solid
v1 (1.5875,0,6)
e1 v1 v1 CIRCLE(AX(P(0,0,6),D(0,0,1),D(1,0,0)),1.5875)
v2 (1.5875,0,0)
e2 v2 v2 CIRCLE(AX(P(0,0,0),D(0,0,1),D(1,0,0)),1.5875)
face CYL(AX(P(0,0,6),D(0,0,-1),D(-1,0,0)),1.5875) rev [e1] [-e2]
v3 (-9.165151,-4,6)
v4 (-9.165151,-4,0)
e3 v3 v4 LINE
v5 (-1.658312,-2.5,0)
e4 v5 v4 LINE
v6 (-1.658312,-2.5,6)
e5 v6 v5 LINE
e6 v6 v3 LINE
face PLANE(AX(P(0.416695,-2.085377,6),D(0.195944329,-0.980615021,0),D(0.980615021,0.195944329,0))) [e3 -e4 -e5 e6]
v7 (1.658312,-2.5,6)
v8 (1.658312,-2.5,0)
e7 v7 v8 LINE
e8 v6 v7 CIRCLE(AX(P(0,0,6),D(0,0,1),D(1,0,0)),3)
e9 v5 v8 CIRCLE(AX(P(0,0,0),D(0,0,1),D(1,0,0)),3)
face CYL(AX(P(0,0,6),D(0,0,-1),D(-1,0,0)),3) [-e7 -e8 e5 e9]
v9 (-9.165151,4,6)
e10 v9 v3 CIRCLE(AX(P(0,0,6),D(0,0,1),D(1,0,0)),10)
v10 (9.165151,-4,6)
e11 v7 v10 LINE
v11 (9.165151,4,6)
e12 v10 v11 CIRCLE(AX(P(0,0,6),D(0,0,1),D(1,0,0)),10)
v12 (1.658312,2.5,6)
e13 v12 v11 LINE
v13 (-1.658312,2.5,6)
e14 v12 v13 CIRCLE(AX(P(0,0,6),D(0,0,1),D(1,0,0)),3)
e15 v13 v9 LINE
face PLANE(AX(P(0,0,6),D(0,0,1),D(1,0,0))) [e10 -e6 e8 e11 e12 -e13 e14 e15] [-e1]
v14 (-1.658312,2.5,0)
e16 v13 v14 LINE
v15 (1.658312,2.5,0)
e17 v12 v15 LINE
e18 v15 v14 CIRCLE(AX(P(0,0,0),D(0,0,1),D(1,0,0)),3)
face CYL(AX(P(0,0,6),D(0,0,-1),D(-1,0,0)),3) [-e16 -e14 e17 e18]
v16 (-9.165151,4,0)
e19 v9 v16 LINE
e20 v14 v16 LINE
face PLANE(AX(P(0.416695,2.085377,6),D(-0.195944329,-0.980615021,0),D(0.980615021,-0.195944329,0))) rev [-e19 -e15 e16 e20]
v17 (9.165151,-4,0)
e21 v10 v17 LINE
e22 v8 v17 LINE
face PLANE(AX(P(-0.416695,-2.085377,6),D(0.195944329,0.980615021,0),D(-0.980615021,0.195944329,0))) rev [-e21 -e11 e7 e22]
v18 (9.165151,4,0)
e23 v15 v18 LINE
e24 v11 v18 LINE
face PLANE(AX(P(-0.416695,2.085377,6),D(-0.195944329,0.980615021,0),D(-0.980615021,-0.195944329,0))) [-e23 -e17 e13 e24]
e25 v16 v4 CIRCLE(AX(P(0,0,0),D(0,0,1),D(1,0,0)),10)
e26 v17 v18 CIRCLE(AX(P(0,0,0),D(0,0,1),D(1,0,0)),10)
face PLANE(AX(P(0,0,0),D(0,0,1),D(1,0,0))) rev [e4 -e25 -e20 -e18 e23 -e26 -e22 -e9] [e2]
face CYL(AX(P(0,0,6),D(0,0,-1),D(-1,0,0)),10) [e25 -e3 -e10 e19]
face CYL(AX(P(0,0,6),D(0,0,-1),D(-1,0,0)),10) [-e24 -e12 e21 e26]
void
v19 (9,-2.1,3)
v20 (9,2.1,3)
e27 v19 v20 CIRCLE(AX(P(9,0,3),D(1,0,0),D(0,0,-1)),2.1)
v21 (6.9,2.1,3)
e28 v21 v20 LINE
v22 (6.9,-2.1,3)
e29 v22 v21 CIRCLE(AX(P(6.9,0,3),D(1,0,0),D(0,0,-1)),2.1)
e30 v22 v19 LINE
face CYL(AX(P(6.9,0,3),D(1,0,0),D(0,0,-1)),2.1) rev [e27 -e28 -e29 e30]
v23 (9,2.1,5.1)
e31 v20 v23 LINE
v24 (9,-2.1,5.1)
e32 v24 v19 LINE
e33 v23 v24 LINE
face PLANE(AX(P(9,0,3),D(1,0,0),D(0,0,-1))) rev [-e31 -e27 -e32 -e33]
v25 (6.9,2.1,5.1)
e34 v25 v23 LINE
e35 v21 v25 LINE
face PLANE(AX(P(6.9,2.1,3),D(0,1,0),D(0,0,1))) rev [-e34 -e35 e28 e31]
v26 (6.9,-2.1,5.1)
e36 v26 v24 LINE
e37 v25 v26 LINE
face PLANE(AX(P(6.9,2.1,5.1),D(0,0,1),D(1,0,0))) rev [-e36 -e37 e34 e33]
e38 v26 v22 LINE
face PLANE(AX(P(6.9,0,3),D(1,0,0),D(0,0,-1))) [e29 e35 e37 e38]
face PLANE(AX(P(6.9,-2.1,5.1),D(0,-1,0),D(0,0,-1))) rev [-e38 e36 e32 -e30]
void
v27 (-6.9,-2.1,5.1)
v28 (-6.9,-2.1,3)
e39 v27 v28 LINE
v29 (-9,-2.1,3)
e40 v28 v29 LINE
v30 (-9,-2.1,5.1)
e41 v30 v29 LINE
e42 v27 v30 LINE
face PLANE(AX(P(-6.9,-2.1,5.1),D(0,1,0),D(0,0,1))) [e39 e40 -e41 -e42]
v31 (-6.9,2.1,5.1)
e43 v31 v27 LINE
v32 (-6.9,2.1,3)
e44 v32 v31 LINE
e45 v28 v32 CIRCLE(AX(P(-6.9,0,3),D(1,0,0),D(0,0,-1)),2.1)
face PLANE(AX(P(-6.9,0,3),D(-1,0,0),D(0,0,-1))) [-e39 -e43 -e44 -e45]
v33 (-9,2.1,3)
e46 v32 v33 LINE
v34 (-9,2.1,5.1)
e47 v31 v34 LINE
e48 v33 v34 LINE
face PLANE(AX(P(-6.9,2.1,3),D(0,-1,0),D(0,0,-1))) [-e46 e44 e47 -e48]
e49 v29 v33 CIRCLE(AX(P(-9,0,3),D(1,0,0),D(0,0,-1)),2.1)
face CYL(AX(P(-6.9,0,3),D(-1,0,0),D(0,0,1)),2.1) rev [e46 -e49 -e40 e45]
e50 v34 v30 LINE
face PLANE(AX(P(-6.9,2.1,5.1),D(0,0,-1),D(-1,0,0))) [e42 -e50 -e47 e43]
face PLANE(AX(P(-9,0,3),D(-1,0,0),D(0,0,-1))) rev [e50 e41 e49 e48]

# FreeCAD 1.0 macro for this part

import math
import FreeCAD as App
import Part
import Sketcher

V = App.Vector

doc = App.newDocument("Part")
body = doc.addObject("PartDesign::Body", "Body")

sketch1 = doc.addObject("Sketcher::SketchObject", "Sketch")
body.addObject(sketch1)
sketch1.AttachmentSupport = (doc.XY_Plane, [""])
sketch1.MapMode = "FlatFace"
sketch1.addGeometry([
    Part.LineSegment(V(-9.2, -4, 0), V(-1.7, -2.5, 0)),
    Part.ArcOfCircle(Part.Circle(V(0, 0, 0), V(0, 0, 1), 3), math.radians(-124), math.radians(-56)),
    Part.LineSegment(V(1.7, -2.5, 0), V(9.2, -4, 0)),
    Part.ArcOfCircle(Part.Circle(V(0, 0, 0), V(0, 0, 1), 10), math.radians(-24), math.radians(24)),
    Part.LineSegment(V(9.2, 4, 0), V(1.7, 2.5, 0)),
    Part.ArcOfCircle(Part.Circle(V(0, 0, 0), V(0, 0, 1), 3), math.radians(56), math.radians(124)),
    Part.LineSegment(V(-1.7, 2.5, 0), V(-9.2, 4, 0)),
    Part.ArcOfCircle(Part.Circle(V(0, 0, 0), V(0, 0, 1), 10), math.radians(156), math.radians(204)),
    Part.Circle(V(0, 0, 0), V(0, 0, 1), 1.6),
], False)
sketch1.addConstraint([
    Sketcher.Constraint("Coincident", 0, 2, 1, 1),
    Sketcher.Constraint("Coincident", 1, 2, 2, 1),
    Sketcher.Constraint("Coincident", 2, 2, 3, 1),
    Sketcher.Constraint("Coincident", 3, 2, 4, 1),
    Sketcher.Constraint("Coincident", 4, 2, 5, 1),
    Sketcher.Constraint("Coincident", 5, 2, 6, 1),
    Sketcher.Constraint("Coincident", 6, 2, 7, 1),
    Sketcher.Constraint("Coincident", 7, 2, 0, 1),
    Sketcher.Constraint("Coincident", 1, 3, -1, 1),
    Sketcher.Constraint("Coincident", 3, 3, -1, 1),
    Sketcher.Constraint("Coincident", 5, 3, -1, 1),
    Sketcher.Constraint("Coincident", 7, 3, -1, 1),
    Sketcher.Constraint("Coincident", 8, 3, -1, 1),
    Sketcher.Constraint("Equal", 1, 5),
    Sketcher.Constraint("Equal", 3, 7),
    Sketcher.Constraint("Parallel", 0, 4),
    Sketcher.Constraint("Parallel", 2, 6),
    Sketcher.Constraint("Horizontal", 0, 2, 1, 2),
    Sketcher.Constraint("Horizontal", 4, 2, 5, 2),
    Sketcher.Constraint("Horizontal", 3, 2, 6, 2),
    Sketcher.Constraint("Vertical", 2, 2, 3, 2),
    Sketcher.Constraint("Radius", 1, 3.0),
    Sketcher.Constraint("Radius", 3, 10.0),
    Sketcher.Constraint("Diameter", 8, 3.175),
    Sketcher.Constraint("DistanceY", 2, 2, -1, 1, 4.0),
    Sketcher.Constraint("DistanceY", 0, 2, -1, 1, 2.5),
])
pad1 = doc.addObject("PartDesign::Pad", "Pad")
body.addObject(pad1)
pad1.Profile = sketch1
pad1.Length = 6

sketch2 = doc.addObject("Sketcher::SketchObject", "Sketch001")
body.addObject(sketch2)
sketch2.AttachmentSupport = (doc.YZ_Plane, [""])
sketch2.MapMode = "FlatFace"
sketch2.AttachmentOffset = App.Placement(V(0, 0, 9), App.Rotation())
sketch2.addGeometry([
    Part.LineSegment(V(2.1, 3, 0), V(2.1, 5.1, 0)),
    Part.LineSegment(V(2.1, 5.1, 0), V(-2.1, 5.1, 0)),
    Part.LineSegment(V(-2.1, 5.1, 0), V(-2.1, 3, 0)),
    Part.ArcOfCircle(Part.Circle(V(0, 3, 0), V(0, 0, 1), 2.1), math.radians(180), math.radians(360)),
], False)
sketch2.addConstraint([
    Sketcher.Constraint("Coincident", 0, 2, 1, 1),
    Sketcher.Constraint("Coincident", 1, 2, 2, 1),
    Sketcher.Constraint("Tangent", 2, 2, 3, 1),
    Sketcher.Constraint("Tangent", 3, 2, 0, 1),
    Sketcher.Constraint("Vertical", 0),
    Sketcher.Constraint("Horizontal", 1),
    Sketcher.Constraint("Vertical", 2),
    Sketcher.Constraint("PointOnObject", 3, 3, -2),
    Sketcher.Constraint("Radius", 3, 2.1),
    Sketcher.Constraint("DistanceY", 0, 1, 0, 2, 2.1),
    Sketcher.Constraint("DistanceY", -1, 1, 3, 3, 3.0),
])
pocket1 = doc.addObject("PartDesign::Pocket", "Pocket")
body.addObject(pocket1)
pocket1.Profile = sketch2
pocket1.Length = 2.1
doc.recompute()

mirrored = doc.addObject("PartDesign::Mirrored", "Mirrored")
body.addObject(mirrored)
mirrored.Originals = [pocket1]
mirrored.MirrorPlane = (doc.YZ_Plane, [""])
body.Tip = mirrored

doc.recompute()
